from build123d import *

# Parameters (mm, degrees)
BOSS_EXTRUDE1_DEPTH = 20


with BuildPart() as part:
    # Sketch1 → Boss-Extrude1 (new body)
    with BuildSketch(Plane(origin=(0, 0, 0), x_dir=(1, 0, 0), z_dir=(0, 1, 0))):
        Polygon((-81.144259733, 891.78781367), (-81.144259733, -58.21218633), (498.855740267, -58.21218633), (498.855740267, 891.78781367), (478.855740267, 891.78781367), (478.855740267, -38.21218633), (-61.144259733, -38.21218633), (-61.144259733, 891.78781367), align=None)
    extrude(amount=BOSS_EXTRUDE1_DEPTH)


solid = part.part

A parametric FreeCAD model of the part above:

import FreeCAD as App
import Part
import Sketcher

V = App.Vector

doc = App.newDocument("Part")
body = doc.addObject("PartDesign::Body", "Body")

sketch1 = doc.addObject("Sketcher::SketchObject", "Sketch")
body.addObject(sketch1)
sketch1.AttachmentSupport = (doc.XZ_Plane, [""])
sketch1.MapMode = "FlatFace"
sketch1.addGeometry([
    Part.LineSegment(V(-81.14426, -891.787814, 0), V(-81.14426, 58.212186, 0)),
    Part.LineSegment(V(-81.14426, 58.212186, 0), V(498.85574, 58.212186, 0)),
    Part.LineSegment(V(498.85574, 58.212186, 0), V(498.85574, -891.787814, 0)),
    Part.LineSegment(V(498.85574, -891.787814, 0), V(478.85574, -891.787814, 0)),
    Part.LineSegment(V(478.85574, -891.787814, 0), V(478.85574, 38.212186, 0)),
    Part.LineSegment(V(478.85574, 38.212186, 0), V(-61.14426, 38.212186, 0)),
    Part.LineSegment(V(-61.14426, 38.212186, 0), V(-61.14426, -891.787814, 0)),
    Part.LineSegment(V(-61.14426, -891.787814, 0), V(-81.14426, -891.787814, 0)),
], False)
sketch1.addConstraint([
    Sketcher.Constraint("Coincident", 0, 2, 1, 1),
    Sketcher.Constraint("Coincident", 1, 2, 2, 1),
    Sketcher.Constraint("Coincident", 2, 2, 3, 1),
    Sketcher.Constraint("Coincident", 3, 2, 4, 1),
    Sketcher.Constraint("Coincident", 4, 2, 5, 1),
    Sketcher.Constraint("Coincident", 5, 2, 6, 1),
    Sketcher.Constraint("Coincident", 6, 2, 7, 1),
    Sketcher.Constraint("Coincident", 7, 2, 0, 1),
    Sketcher.Constraint("Vertical", 0),
    Sketcher.Constraint("Horizontal", 1),
    Sketcher.Constraint("Vertical", 2),
    Sketcher.Constraint("Horizontal", 3),
    Sketcher.Constraint("Vertical", 4),
    Sketcher.Constraint("Horizontal", 5),
    Sketcher.Constraint("Vertical", 6),
    Sketcher.Constraint("Horizontal", 7),
    Sketcher.Constraint("Horizontal", 3, 2, 6, 2),
    Sketcher.Constraint("Equal", 3, 7),
    Sketcher.Constraint("DistanceX", 1, 1, 1, 2, 580.0),
    Sketcher.Constraint("DistanceX", 3, 2, 3, 1, 20.0),
    Sketcher.Constraint("DistanceY", 0, 1, 0, 2, 950.0),
    Sketcher.Constraint("DistanceY", 4, 1, 4, 2, 930.0),
    Sketcher.Constraint("DistanceX", 0, 2, -1, 1, 81.14426),
    Sketcher.Constraint("DistanceY", -1, 1, 0, 2, 58.212186),
])
pad1 = doc.addObject("PartDesign::Pad", "Pad")
body.addObject(pad1)
pad1.Profile = sketch1
pad1.Length = 20
pad1.Reversed = True

doc.recompute()
